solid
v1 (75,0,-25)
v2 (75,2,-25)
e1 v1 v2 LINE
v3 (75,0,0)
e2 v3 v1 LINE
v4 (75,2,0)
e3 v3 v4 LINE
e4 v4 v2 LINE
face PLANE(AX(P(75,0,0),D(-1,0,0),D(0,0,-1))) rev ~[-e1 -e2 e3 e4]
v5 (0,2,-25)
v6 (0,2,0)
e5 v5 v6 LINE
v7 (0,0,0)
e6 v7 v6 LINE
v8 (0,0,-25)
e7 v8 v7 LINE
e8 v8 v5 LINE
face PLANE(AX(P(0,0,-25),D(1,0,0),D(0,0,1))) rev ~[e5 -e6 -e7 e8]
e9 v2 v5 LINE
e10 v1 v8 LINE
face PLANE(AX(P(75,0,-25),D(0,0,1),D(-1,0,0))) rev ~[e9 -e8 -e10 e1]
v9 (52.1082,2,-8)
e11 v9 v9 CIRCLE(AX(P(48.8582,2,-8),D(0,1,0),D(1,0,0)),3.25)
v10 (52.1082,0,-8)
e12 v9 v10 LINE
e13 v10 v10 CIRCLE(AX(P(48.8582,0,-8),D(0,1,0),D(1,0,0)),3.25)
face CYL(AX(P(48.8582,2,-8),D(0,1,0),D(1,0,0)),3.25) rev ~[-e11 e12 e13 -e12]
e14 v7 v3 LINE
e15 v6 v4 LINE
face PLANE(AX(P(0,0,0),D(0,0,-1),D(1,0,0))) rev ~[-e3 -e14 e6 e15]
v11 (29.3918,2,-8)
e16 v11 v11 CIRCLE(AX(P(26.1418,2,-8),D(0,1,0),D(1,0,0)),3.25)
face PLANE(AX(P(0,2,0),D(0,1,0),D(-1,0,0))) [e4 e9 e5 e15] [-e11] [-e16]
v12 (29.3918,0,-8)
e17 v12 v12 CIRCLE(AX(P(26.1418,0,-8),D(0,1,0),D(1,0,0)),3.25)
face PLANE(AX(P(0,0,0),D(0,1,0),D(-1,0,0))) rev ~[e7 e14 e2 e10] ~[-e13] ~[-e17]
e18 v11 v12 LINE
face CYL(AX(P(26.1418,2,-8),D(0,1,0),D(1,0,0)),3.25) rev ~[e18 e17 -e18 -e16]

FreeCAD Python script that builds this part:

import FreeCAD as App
import Part
import Sketcher
Q = App.Units.Quantity

doc = App.newDocument("Part")
body = doc.addObject("PartDesign::Body", "Body")

sketch1 = body.newObject("Sketcher::SketchObject", "Sketch")
sketch1.AttachmentSupport = (doc.getObject("XZ_Plane"), [""])
sketch1.MapMode = "FlatFace"
sketch1.addGeometry([
    Part.LineSegment(App.Vector(0, -25, 0), App.Vector(0, 0, 0)),
    Part.LineSegment(App.Vector(0, 0, 0), App.Vector(75, 0, 0)),
    Part.LineSegment(App.Vector(75, 0, 0), App.Vector(75, -25, 0)),
    Part.LineSegment(App.Vector(75, -25, 0), App.Vector(0, -25, 0)),
], False)
sketch1.addConstraint([
    Sketcher.Constraint("Coincident", 0, 2, 1, 1),
    Sketcher.Constraint("Coincident", 1, 2, 2, 1),
    Sketcher.Constraint("Coincident", 2, 2, 3, 1),
    Sketcher.Constraint("Coincident", 3, 2, 0, 1),
    Sketcher.Constraint("Vertical", 0),
    Sketcher.Constraint("Horizontal", 1),
    Sketcher.Constraint("Vertical", 2),
    Sketcher.Constraint("Horizontal", 3),
    Sketcher.Constraint("Coincident", 0, 2, -1, 1),
    Sketcher.Constraint("DistanceX", 1, 1, 1, 2, Q("75 mm")),
    Sketcher.Constraint("DistanceY", 0, 1, 0, 2, Q("25 mm")),
])
pad1 = body.newObject("PartDesign::Pad", "Pad")
pad1.Profile = sketch1
pad1.Length = 2
pad1.Reversed = True

sketch2 = body.newObject("Sketcher::SketchObject", "Sketch001")
sketch2.AttachmentSupport = (doc.getObject("XZ_Plane"), [""])
sketch2.MapMode = "FlatFace"
sketch2.AttachmentOffset = App.Placement(App.Vector(0, 0, -2), App.Rotation())
sketch2.addGeometry([
    Part.Circle(App.Vector(26.1418, -8, 0), App.Vector(0, 0, 1), 3.25),
    Part.Circle(App.Vector(48.8582, -8, 0), App.Vector(0, 0, 1), 3.25),
], False)
sketch2.addConstraint([
    Sketcher.Constraint("Equal", 0, 1),
    Sketcher.Constraint("Horizontal", 0, 3, 1, 3),
    Sketcher.Constraint("Diameter", 0, Q("6.5 mm")),
    Sketcher.Constraint("DistanceY", 0, 3, -1, 1, Q("8 mm")),
    Sketcher.Constraint("DistanceX", -1, 1, 0, 3, Q("26.1418 mm")),
    Sketcher.Constraint("DistanceX", -1, 1, 1, 3, Q("48.8582 mm")),
])
pocket1 = body.newObject("PartDesign::Pocket", "Pocket")
pocket1.Profile = sketch2
pocket1.Length = 2
pocket1.Reversed = True

doc.recompute()
